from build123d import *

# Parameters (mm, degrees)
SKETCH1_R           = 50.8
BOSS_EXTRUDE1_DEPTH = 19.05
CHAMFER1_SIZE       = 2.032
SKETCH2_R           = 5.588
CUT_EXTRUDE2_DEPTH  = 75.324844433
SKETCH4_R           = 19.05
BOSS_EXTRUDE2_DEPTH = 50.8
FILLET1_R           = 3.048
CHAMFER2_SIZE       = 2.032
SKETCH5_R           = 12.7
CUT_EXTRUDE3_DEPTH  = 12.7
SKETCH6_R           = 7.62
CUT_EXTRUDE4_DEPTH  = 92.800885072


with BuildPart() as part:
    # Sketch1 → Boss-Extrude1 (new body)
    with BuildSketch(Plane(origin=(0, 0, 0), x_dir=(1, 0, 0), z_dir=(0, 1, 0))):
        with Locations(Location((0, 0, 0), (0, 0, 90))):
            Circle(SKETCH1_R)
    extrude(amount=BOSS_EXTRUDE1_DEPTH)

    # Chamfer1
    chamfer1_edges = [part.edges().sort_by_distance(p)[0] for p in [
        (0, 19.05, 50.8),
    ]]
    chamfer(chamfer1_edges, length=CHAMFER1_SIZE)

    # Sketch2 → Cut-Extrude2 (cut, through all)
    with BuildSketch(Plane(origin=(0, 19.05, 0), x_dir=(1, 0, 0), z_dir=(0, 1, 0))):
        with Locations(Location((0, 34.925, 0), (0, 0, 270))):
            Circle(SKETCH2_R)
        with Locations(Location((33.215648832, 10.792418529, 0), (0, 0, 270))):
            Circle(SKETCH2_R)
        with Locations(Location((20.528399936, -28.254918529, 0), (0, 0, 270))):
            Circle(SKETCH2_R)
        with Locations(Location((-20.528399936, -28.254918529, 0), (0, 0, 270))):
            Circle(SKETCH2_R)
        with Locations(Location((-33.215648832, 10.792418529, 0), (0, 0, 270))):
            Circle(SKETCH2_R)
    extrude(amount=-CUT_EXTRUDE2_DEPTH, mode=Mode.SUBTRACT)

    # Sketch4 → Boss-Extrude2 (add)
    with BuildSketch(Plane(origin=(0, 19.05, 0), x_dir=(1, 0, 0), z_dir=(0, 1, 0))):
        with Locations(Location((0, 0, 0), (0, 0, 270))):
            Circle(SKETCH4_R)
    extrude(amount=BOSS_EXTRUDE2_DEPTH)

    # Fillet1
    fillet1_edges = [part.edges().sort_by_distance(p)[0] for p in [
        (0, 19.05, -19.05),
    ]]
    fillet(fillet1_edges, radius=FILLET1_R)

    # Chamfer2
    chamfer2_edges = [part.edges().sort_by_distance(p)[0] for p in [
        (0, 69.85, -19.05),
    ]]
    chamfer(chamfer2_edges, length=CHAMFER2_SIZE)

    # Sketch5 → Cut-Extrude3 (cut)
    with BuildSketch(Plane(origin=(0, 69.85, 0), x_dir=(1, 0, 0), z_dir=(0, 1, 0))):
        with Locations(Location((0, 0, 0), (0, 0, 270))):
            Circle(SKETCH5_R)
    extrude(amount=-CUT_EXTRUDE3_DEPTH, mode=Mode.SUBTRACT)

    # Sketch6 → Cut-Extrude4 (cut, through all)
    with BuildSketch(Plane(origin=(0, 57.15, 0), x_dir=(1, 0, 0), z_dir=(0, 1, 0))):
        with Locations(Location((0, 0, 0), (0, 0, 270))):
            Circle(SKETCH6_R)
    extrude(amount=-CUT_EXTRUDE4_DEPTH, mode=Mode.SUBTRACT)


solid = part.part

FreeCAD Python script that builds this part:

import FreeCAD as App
import Part
import Sketcher
Q = App.Units.Quantity


def edges_at(feature, points):
    """Names of the edges that pass closest to the given points."""
    edges = feature.Shape.Edges
    near = lambda p: min(range(len(edges)), key=lambda i: edges[i].distToShape(Part.Vertex(*p))[0])
    return sorted({f"Edge{near(p) + 1}" for p in points})

doc = App.newDocument("Part")
body = doc.addObject("PartDesign::Body", "Body")

# Sketch on XZ plane
sketch1 = doc.addObject("Sketcher::SketchObject", "Sketch")
body.addObject(sketch1)
sketch1.AttachmentSupport = (doc.XZ_Plane, [""])
sketch1.MapMode = "FlatFace"
sketch1.addGeometry(Part.Circle(App.Vector(0, 0, 0), App.Vector(0, 0, 1), 51), False)
sketch1.addConstraint(Sketcher.Constraint("Coincident", 0, 3, -1, 1))
sketch1.addConstraint(Sketcher.Constraint("Diameter", 0, Q("4 in")))
pad1 = doc.addObject("PartDesign::Pad", "Pad")
body.addObject(pad1)
pad1.Profile = sketch1
pad1.Length = Q("0.75 in")
pad1.Reversed = True
doc.recompute()

chamfer = doc.addObject("PartDesign::Chamfer", "Chamfer")
body.addObject(chamfer)
chamfer.Base = (pad1, edges_at(pad1, [(0, 19.05, 50.8)]))
chamfer.Size = Q("0.08 in")

# Sketch on XZ plane
sketch2 = doc.addObject("Sketcher::SketchObject", "Sketch001")
body.addObject(sketch2)
sketch2.AttachmentSupport = (doc.XZ_Plane, [""])
sketch2.MapMode = "FlatFace"
sketch2.AttachmentOffset = App.Placement(App.Vector(0, 0, -0.75 * 25.4), App.Rotation())
sketch2.addGeometry(Part.Circle(App.Vector(0, -35, 0), App.Vector(0, 0, 1), 6), False)
sketch2.addGeometry(Part.Circle(App.Vector(33, -11, 0), App.Vector(0, 0, 1), 6), False)
sketch2.addGeometry(Part.Circle(App.Vector(21, 28, 0), App.Vector(0, 0, 1), 6), False)
sketch2.addGeometry(Part.Circle(App.Vector(-21, 28, 0), App.Vector(0, 0, 1), 6), False)
sketch2.addGeometry(Part.Circle(App.Vector(-33, -11, 0), App.Vector(0, 0, 1), 6), False)
sketch2.addConstraint(Sketcher.Constraint("Equal", 0, 1))
sketch2.addConstraint(Sketcher.Constraint("Equal", 1, 2))
sketch2.addConstraint(Sketcher.Constraint("Equal", 2, 3))
sketch2.addConstraint(Sketcher.Constraint("Equal", 3, 4))
sketch2.addConstraint(Sketcher.Constraint("Symmetric", 2, 3, 3, 3, -2))
sketch2.addConstraint(Sketcher.Constraint("Symmetric", 1, 3, 4, 3, -2))
sketch2.addConstraint(Sketcher.Constraint("PointOnObject", 0, 3, -2))
sketch2.addConstraint(Sketcher.Constraint("Diameter", 0, Q("0.44 in")))
sketch2.addConstraint(Sketcher.Constraint("DistanceY", 0, 3, -1, 1, Q("1.375 in")))
sketch2.addConstraint(Sketcher.Constraint("DistanceX", -1, 1, 2, 3, 20.5284))
sketch2.addConstraint(Sketcher.Constraint("DistanceX", -1, 1, 1, 3, 33.215649))
sketch2.addConstraint(Sketcher.Constraint("DistanceY", 1, 3, -1, 1, 10.792419))
sketch2.addConstraint(Sketcher.Constraint("DistanceY", -1, 1, 2, 3, 28.254919))
pocket1 = doc.addObject("PartDesign::Pocket", "Pocket")
body.addObject(pocket1)
pocket1.Profile = sketch2
pocket1.Type = "ThroughAll"
pocket1.Reversed = True

# Sketch on XZ plane
sketch3 = doc.addObject("Sketcher::SketchObject", "Sketch002")
body.addObject(sketch3)
sketch3.AttachmentSupport = (doc.XZ_Plane, [""])
sketch3.MapMode = "FlatFace"
sketch3.AttachmentOffset = App.Placement(App.Vector(0, 0, -0.75 * 25.4), App.Rotation())
sketch3.addGeometry(Part.Circle(App.Vector(0, 0, 0), App.Vector(0, 0, 1), 19), False)
sketch3.addConstraint(Sketcher.Constraint("Coincident", 0, 3, -1, 1))
sketch3.addConstraint(Sketcher.Constraint("Diameter", 0, Q("1.5 in")))
pad2 = doc.addObject("PartDesign::Pad", "Pad001")
body.addObject(pad2)
pad2.Profile = sketch3
pad2.Length = Q("2 in")
pad2.Reversed = True
doc.recompute()

fillet = doc.addObject("PartDesign::Fillet", "Fillet")
body.addObject(fillet)
fillet.Base = (pad2, edges_at(pad2, [(0, 19.05, -19.05)]))
fillet.Radius = Q("0.12 in")
doc.recompute()

chamfer2 = doc.addObject("PartDesign::Chamfer", "Chamfer001")
body.addObject(chamfer2)
chamfer2.Base = (fillet, edges_at(fillet, [(0, 69.85, -19.05)]))
chamfer2.Size = Q("0.08 in")

# Sketch on XZ plane
sketch4 = doc.addObject("Sketcher::SketchObject", "Sketch003")
body.addObject(sketch4)
sketch4.AttachmentSupport = (doc.XZ_Plane, [""])
sketch4.MapMode = "FlatFace"
sketch4.AttachmentOffset = App.Placement(App.Vector(0, 0, -2.75 * 25.4), App.Rotation())
sketch4.addGeometry(Part.Circle(App.Vector(0, 0, 0), App.Vector(0, 0, 1), 13), False)
sketch4.addConstraint(Sketcher.Constraint("Coincident", 0, 3, -1, 1))
sketch4.addConstraint(Sketcher.Constraint("Diameter", 0, Q("1 in")))
pocket2 = doc.addObject("PartDesign::Pocket", "Pocket001")
body.addObject(pocket2)
pocket2.Profile = sketch4
pocket2.Length = Q("0.5 in")
pocket2.Reversed = True

# Sketch on XZ plane
sketch5 = doc.addObject("Sketcher::SketchObject", "Sketch004")
body.addObject(sketch5)
sketch5.AttachmentSupport = (doc.XZ_Plane, [""])
sketch5.MapMode = "FlatFace"
sketch5.AttachmentOffset = App.Placement(App.Vector(0, 0, -2.25 * 25.4), App.Rotation())
sketch5.addGeometry(Part.Circle(App.Vector(0, 0, 0), App.Vector(0, 0, 1), 8), False)
sketch5.addConstraint(Sketcher.Constraint("Coincident", 0, 3, -1, 1))
sketch5.addConstraint(Sketcher.Constraint("Diameter", 0, Q("0.6 in")))
pocket3 = doc.addObject("PartDesign::Pocket", "Pocket002")
body.addObject(pocket3)
pocket3.Profile = sketch5
pocket3.Type = "ThroughAll"
pocket3.Reversed = True

doc.recompute()
